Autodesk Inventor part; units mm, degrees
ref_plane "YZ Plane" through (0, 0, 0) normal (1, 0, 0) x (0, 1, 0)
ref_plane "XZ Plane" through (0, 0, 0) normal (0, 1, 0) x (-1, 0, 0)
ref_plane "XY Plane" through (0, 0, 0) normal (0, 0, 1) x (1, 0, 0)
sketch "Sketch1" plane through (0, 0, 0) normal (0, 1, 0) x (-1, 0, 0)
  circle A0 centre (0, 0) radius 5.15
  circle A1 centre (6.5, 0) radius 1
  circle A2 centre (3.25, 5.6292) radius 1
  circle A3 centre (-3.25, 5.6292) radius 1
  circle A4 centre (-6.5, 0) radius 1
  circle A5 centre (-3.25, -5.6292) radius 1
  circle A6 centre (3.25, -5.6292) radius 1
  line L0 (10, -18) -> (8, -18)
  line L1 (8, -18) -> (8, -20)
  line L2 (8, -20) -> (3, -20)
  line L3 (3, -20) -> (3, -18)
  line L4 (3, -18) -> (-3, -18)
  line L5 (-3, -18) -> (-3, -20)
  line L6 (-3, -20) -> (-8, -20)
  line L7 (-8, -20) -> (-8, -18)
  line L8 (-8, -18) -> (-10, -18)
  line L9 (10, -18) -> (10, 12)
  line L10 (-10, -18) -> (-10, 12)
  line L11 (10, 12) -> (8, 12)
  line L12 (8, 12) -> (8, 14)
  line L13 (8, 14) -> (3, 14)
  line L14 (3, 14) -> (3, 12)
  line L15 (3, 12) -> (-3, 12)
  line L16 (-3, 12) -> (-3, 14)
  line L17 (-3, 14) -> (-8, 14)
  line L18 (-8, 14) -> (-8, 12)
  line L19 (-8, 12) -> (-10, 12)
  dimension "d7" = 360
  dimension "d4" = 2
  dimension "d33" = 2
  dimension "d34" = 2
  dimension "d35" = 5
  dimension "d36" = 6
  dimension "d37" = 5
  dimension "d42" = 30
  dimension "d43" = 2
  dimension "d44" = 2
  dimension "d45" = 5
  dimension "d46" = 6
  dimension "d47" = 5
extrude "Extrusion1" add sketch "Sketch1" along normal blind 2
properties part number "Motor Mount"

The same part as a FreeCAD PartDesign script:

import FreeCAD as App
import Part
import Sketcher
Q = App.Units.Quantity

doc = App.newDocument("Part")
params = doc.addObject("Spreadsheet::Sheet", "Params")
for row, (alias, value) in enumerate([
    ("sketch1_diameter", "2 mm"),
    ("sketch1_width", "2 mm"),
    ("sketch1_width2", "5 mm"),
    ("sketch1_width3", "6 mm"),
    ("sketch1_height", "30 mm"),
    ("pad1_length", "2 mm"),
], start=1):
    params.set(f"A{row}", alias)
    params.set(f"B{row}", "=" + value)
    params.setAlias(f"B{row}", alias)

body = doc.addObject("PartDesign::Body", "Body")

sketch1 = body.newObject("Sketcher::SketchObject", "Sketch")
sketch1.AttachmentSupport = (doc.getObject("XZ_Plane"), [""])
sketch1.MapMode = "FlatFace"
sketch1.addGeometry(Part.LineSegment(App.Vector(-8, -18, 0), App.Vector(-10, -18, 0)), False)
sketch1.addGeometry(Part.LineSegment(App.Vector(-10, -18, 0), App.Vector(-10, 12, 0)), False)
sketch1.addGeometry(Part.LineSegment(App.Vector(-10, 12, 0), App.Vector(-8, 12, 0)), False)
sketch1.addGeometry(Part.LineSegment(App.Vector(-8, 12, 0), App.Vector(-8, 14, 0)), False)
sketch1.addGeometry(Part.LineSegment(App.Vector(-8, 14, 0), App.Vector(-3, 14, 0)), False)
sketch1.addGeometry(Part.LineSegment(App.Vector(-3, 14, 0), App.Vector(-3, 12, 0)), False)
sketch1.addGeometry(Part.LineSegment(App.Vector(-3, 12, 0), App.Vector(3, 12, 0)), False)
sketch1.addGeometry(Part.LineSegment(App.Vector(3, 12, 0), App.Vector(3, 14, 0)), False)
sketch1.addGeometry(Part.LineSegment(App.Vector(3, 14, 0), App.Vector(8, 14, 0)), False)
sketch1.addGeometry(Part.LineSegment(App.Vector(8, 14, 0), App.Vector(8, 12, 0)), False)
sketch1.addGeometry(Part.LineSegment(App.Vector(8, 12, 0), App.Vector(10, 12, 0)), False)
sketch1.addGeometry(Part.LineSegment(App.Vector(10, 12, 0), App.Vector(10, -18, 0)), False)
sketch1.addGeometry(Part.LineSegment(App.Vector(10, -18, 0), App.Vector(8, -18, 0)), False)
sketch1.addGeometry(Part.LineSegment(App.Vector(8, -18, 0), App.Vector(8, -20, 0)), False)
sketch1.addGeometry(Part.LineSegment(App.Vector(8, -20, 0), App.Vector(3, -20, 0)), False)
sketch1.addGeometry(Part.LineSegment(App.Vector(3, -20, 0), App.Vector(3, -18, 0)), False)
sketch1.addGeometry(Part.LineSegment(App.Vector(3, -18, 0), App.Vector(-3, -18, 0)), False)
sketch1.addGeometry(Part.LineSegment(App.Vector(-3, -18, 0), App.Vector(-3, -20, 0)), False)
sketch1.addGeometry(Part.LineSegment(App.Vector(-3, -20, 0), App.Vector(-8, -20, 0)), False)
sketch1.addGeometry(Part.LineSegment(App.Vector(-8, -20, 0), App.Vector(-8, -18, 0)), False)
sketch1.addGeometry(Part.Circle(App.Vector(3.25, -5.6292, 0), App.Vector(0, 0, 1), 1), False)
sketch1.addGeometry(Part.Circle(App.Vector(-3.25, -5.6292, 0), App.Vector(0, 0, 1), 1), False)
sketch1.addGeometry(Part.Circle(App.Vector(6.5, 0, 0), App.Vector(0, 0, 1), 1), False)
sketch1.addGeometry(Part.Circle(App.Vector(3.25, 5.6292, 0), App.Vector(0, 0, 1), 1), False)
sketch1.addGeometry(Part.Circle(App.Vector(0, 0, 0), App.Vector(0, 0, 1), 5.15), False)
sketch1.addGeometry(Part.Circle(App.Vector(-6.5, 0, 0), App.Vector(0, 0, 1), 1), False)
sketch1.addGeometry(Part.Circle(App.Vector(-3.25, 5.6292, 0), App.Vector(0, 0, 1), 1), False)
sketch1.addConstraint(Sketcher.Constraint("Coincident", 0, 2, 1, 1))
sketch1.addConstraint(Sketcher.Constraint("Coincident", 1, 2, 2, 1))
sketch1.addConstraint(Sketcher.Constraint("Coincident", 2, 2, 3, 1))
sketch1.addConstraint(Sketcher.Constraint("Coincident", 3, 2, 4, 1))
sketch1.addConstraint(Sketcher.Constraint("Coincident", 4, 2, 5, 1))
sketch1.addConstraint(Sketcher.Constraint("Coincident", 5, 2, 6, 1))
sketch1.addConstraint(Sketcher.Constraint("Coincident", 6, 2, 7, 1))
sketch1.addConstraint(Sketcher.Constraint("Coincident", 7, 2, 8, 1))
sketch1.addConstraint(Sketcher.Constraint("Coincident", 8, 2, 9, 1))
sketch1.addConstraint(Sketcher.Constraint("Coincident", 9, 2, 10, 1))
sketch1.addConstraint(Sketcher.Constraint("Coincident", 10, 2, 11, 1))
sketch1.addConstraint(Sketcher.Constraint("Coincident", 11, 2, 12, 1))
sketch1.addConstraint(Sketcher.Constraint("Coincident", 12, 2, 13, 1))
sketch1.addConstraint(Sketcher.Constraint("Coincident", 13, 2, 14, 1))
sketch1.addConstraint(Sketcher.Constraint("Coincident", 14, 2, 15, 1))
sketch1.addConstraint(Sketcher.Constraint("Coincident", 15, 2, 16, 1))
sketch1.addConstraint(Sketcher.Constraint("Coincident", 16, 2, 17, 1))
sketch1.addConstraint(Sketcher.Constraint("Coincident", 17, 2, 18, 1))
sketch1.addConstraint(Sketcher.Constraint("Coincident", 18, 2, 19, 1))
sketch1.addConstraint(Sketcher.Constraint("Coincident", 19, 2, 0, 1))
sketch1.addConstraint(Sketcher.Constraint("Horizontal", 0))
sketch1.addConstraint(Sketcher.Constraint("Vertical", 1))
sketch1.addConstraint(Sketcher.Constraint("Horizontal", 2))
sketch1.addConstraint(Sketcher.Constraint("Vertical", 3))
sketch1.addConstraint(Sketcher.Constraint("Horizontal", 4))
sketch1.addConstraint(Sketcher.Constraint("Vertical", 5))
sketch1.addConstraint(Sketcher.Constraint("Horizontal", 6))
sketch1.addConstraint(Sketcher.Constraint("Vertical", 7))
sketch1.addConstraint(Sketcher.Constraint("Horizontal", 8))
sketch1.addConstraint(Sketcher.Constraint("Vertical", 9))
sketch1.addConstraint(Sketcher.Constraint("Horizontal", 10))
sketch1.addConstraint(Sketcher.Constraint("Vertical", 11))
sketch1.addConstraint(Sketcher.Constraint("Horizontal", 12))
sketch1.addConstraint(Sketcher.Constraint("Vertical", 13))
sketch1.addConstraint(Sketcher.Constraint("Horizontal", 14))
sketch1.addConstraint(Sketcher.Constraint("Vertical", 15))
sketch1.addConstraint(Sketcher.Constraint("Horizontal", 16))
sketch1.addConstraint(Sketcher.Constraint("Vertical", 17))
sketch1.addConstraint(Sketcher.Constraint("Horizontal", 18))
sketch1.addConstraint(Sketcher.Constraint("Vertical", 19))
sketch1.addConstraint(Sketcher.Constraint("Coincident", 24, 3, -1, 1))
sketch1.addConstraint(Sketcher.Constraint("Equal", 20, 21))
sketch1.addConstraint(Sketcher.Constraint("Equal", 21, 22))
sketch1.addConstraint(Sketcher.Constraint("Equal", 22, 23))
sketch1.addConstraint(Sketcher.Constraint("Equal", 23, 25))
sketch1.addConstraint(Sketcher.Constraint("Equal", 25, 26))
sketch1.addConstraint(Sketcher.Constraint("Symmetric", 21, 3, 23, 3, -1, 1))
sketch1.addConstraint(Sketcher.Constraint("Symmetric", 22, 3, 25, 3, -1, 1))
sketch1.addConstraint(Sketcher.Constraint("Symmetric", 20, 3, 26, 3, -1, 1))
sketch1.addConstraint(Sketcher.Constraint("Symmetric", 20, 3, 21, 3, -2))
sketch1.addConstraint(Sketcher.Constraint("Symmetric", 4, 2, 7, 2, -2))
sketch1.addConstraint(Sketcher.Constraint("Symmetric", 2, 2, 9, 2, -2))
sketch1.addConstraint(Sketcher.Constraint("Symmetric", 0, 2, 11, 2, -2))
sketch1.addConstraint(Sketcher.Constraint("Symmetric", 14, 2, 17, 2, -2))
sketch1.addConstraint(Sketcher.Constraint("PointOnObject", 22, 3, -1))
sketch1.addConstraint(Sketcher.Constraint("Horizontal", 2, 2, 5, 2))
sketch1.addConstraint(Sketcher.Constraint("Horizontal", 12, 2, 15, 2))
sketch1.addConstraint(Sketcher.Constraint("Vertical", 9, 2, 12, 2))
sketch1.addConstraint(Sketcher.Constraint("Vertical", 7, 2, 14, 2))
sketch1.addConstraint(Sketcher.Constraint("Vertical", 3, 2, 18, 2))
sketch1.addConstraint(Sketcher.Constraint("Equal", 12, 3))
sketch1.addConstraint(Sketcher.Constraint("Equal", 9, 13))
sketch1.addConstraint(Sketcher.Constraint("Diameter", 20, Q("2 mm")))
sketch1.addConstraint(Sketcher.Constraint("DistanceX", 0, 2, 0, 1, Q("2 mm")))
sketch1.addConstraint(Sketcher.Constraint("DistanceX", 4, 1, 4, 2, Q("5 mm")))
sketch1.addConstraint(Sketcher.Constraint("DistanceX", 6, 1, 6, 2, Q("6 mm")))
sketch1.addConstraint(Sketcher.Constraint("DistanceY", 1, 1, 1, 2, Q("30 mm")))
sketch1.addConstraint(Sketcher.Constraint("Diameter", 24, Q("10.3 mm")))
sketch1.addConstraint(Sketcher.Constraint("DistanceY", 0, 2, -1, 1, Q("18 mm")))
sketch1.addConstraint(Sketcher.Constraint("DistanceX", 25, 3, 22, 3, Q("13 mm")))
sketch1.addConstraint(Sketcher.Constraint("DistanceX", 21, 3, 20, 3, Q("6.5 mm")))
sketch1.addConstraint(Sketcher.Constraint("DistanceY", 20, 3, -1, 1, Q("5.6292 mm")))
sketch1.setExpression("Constraints[62]", "Params.sketch1_diameter")
sketch1.setExpression("Constraints[63]", "Params.sketch1_width")
sketch1.setExpression("Constraints[64]", "Params.sketch1_width2")
sketch1.setExpression("Constraints[65]", "Params.sketch1_width3")
sketch1.setExpression("Constraints[66]", "Params.sketch1_height")
pad1 = body.newObject("PartDesign::Pad", "Pad")
pad1.Profile = sketch1
pad1.setExpression("Length", "Params.pad1_length")
pad1.Reversed = True

doc.recompute()
